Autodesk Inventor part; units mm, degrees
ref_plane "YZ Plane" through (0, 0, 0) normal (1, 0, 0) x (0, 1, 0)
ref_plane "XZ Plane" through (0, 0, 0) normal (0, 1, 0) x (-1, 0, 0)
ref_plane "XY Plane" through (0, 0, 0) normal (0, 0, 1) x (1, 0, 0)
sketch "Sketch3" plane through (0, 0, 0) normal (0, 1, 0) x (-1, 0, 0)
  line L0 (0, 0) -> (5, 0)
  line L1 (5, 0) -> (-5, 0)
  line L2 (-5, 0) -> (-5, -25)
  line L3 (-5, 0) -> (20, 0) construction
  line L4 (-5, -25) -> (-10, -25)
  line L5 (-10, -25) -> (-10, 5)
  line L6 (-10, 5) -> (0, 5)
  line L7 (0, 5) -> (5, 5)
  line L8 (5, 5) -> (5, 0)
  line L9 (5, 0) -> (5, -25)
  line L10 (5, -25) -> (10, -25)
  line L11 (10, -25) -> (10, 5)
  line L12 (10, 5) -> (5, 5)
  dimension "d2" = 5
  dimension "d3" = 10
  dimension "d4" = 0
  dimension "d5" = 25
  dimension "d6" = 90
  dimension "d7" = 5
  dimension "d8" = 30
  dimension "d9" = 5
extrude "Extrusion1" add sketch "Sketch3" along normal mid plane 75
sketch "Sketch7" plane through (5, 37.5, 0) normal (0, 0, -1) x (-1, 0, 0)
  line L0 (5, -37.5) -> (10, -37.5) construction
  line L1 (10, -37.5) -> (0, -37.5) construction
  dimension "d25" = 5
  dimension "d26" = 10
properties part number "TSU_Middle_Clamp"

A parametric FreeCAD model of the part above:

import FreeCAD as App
import Part
import Sketcher
from FreeCAD import Vector
Q = App.Units.Quantity

doc = App.newDocument("Part")
body = doc.addObject("PartDesign::Body", "Body")

# Sketch on XZ plane
sketch1 = body.newObject("Sketcher::SketchObject", "Sketch")
sketch1.AttachmentSupport = (doc.getObject("XZ_Plane"), [""])
sketch1.MapMode = "FlatFace"
sketch1.addGeometry([
    Part.LineSegment(Vector(5, 0, 0), Vector(-5, 0, 0)),  # 0
    Part.LineSegment(Vector(-5, 0, 0), Vector(-5, -25, 0)),  # 1
    Part.LineSegment(Vector(-5, -25, 0), Vector(-10, -25, 0)),  # 2
    Part.LineSegment(Vector(-10, -25, 0), Vector(-10, 5, 0)),  # 3
    Part.LineSegment(Vector(-10, 5, 0), Vector(10, 5, 0)),  # 4
    Part.LineSegment(Vector(10, 5, 0), Vector(10, -25, 0)),  # 5
    Part.LineSegment(Vector(10, -25, 0), Vector(5, -25, 0)),  # 6
    Part.LineSegment(Vector(5, -25, 0), Vector(5, 0, 0)),  # 7
], False)
sketch1.addConstraint([
    Sketcher.Constraint("Coincident", 0, 2, 1, 1),
    Sketcher.Constraint("Coincident", 1, 2, 2, 1),
    Sketcher.Constraint("Coincident", 2, 2, 3, 1),
    Sketcher.Constraint("Coincident", 3, 2, 4, 1),
    Sketcher.Constraint("Coincident", 4, 2, 5, 1),
    Sketcher.Constraint("Coincident", 5, 2, 6, 1),
    Sketcher.Constraint("Coincident", 6, 2, 7, 1),
    Sketcher.Constraint("Coincident", 7, 2, 0, 1),
    Sketcher.Constraint("Horizontal", 0),
    Sketcher.Constraint("Vertical", 1),
    Sketcher.Constraint("Horizontal", 2),
    Sketcher.Constraint("Vertical", 3),
    Sketcher.Constraint("Horizontal", 4),
    Sketcher.Constraint("Vertical", 5),
    Sketcher.Constraint("Horizontal", 6),
    Sketcher.Constraint("Vertical", 7),
    Sketcher.Constraint("Symmetric", 0, 2, 7, 2, -1, 1),
    Sketcher.Constraint("Symmetric", 2, 2, 5, 2, -2),
    Sketcher.Constraint("DistanceX", 0, 2, 0, 1, Q("10 mm")),
    Sketcher.Constraint("DistanceX", 2, 2, 2, 1, Q("5 mm")),
    Sketcher.Constraint("DistanceY", 1, 2, 1, 1, Q("25 mm")),
    Sketcher.Constraint("DistanceY", 3, 1, 3, 2, Q("30 mm")),
])
pad1 = body.newObject("PartDesign::Pad", "Pad")
pad1.Profile = sketch1
pad1.Length = 75
pad1.Midplane = True

doc.recompute()
